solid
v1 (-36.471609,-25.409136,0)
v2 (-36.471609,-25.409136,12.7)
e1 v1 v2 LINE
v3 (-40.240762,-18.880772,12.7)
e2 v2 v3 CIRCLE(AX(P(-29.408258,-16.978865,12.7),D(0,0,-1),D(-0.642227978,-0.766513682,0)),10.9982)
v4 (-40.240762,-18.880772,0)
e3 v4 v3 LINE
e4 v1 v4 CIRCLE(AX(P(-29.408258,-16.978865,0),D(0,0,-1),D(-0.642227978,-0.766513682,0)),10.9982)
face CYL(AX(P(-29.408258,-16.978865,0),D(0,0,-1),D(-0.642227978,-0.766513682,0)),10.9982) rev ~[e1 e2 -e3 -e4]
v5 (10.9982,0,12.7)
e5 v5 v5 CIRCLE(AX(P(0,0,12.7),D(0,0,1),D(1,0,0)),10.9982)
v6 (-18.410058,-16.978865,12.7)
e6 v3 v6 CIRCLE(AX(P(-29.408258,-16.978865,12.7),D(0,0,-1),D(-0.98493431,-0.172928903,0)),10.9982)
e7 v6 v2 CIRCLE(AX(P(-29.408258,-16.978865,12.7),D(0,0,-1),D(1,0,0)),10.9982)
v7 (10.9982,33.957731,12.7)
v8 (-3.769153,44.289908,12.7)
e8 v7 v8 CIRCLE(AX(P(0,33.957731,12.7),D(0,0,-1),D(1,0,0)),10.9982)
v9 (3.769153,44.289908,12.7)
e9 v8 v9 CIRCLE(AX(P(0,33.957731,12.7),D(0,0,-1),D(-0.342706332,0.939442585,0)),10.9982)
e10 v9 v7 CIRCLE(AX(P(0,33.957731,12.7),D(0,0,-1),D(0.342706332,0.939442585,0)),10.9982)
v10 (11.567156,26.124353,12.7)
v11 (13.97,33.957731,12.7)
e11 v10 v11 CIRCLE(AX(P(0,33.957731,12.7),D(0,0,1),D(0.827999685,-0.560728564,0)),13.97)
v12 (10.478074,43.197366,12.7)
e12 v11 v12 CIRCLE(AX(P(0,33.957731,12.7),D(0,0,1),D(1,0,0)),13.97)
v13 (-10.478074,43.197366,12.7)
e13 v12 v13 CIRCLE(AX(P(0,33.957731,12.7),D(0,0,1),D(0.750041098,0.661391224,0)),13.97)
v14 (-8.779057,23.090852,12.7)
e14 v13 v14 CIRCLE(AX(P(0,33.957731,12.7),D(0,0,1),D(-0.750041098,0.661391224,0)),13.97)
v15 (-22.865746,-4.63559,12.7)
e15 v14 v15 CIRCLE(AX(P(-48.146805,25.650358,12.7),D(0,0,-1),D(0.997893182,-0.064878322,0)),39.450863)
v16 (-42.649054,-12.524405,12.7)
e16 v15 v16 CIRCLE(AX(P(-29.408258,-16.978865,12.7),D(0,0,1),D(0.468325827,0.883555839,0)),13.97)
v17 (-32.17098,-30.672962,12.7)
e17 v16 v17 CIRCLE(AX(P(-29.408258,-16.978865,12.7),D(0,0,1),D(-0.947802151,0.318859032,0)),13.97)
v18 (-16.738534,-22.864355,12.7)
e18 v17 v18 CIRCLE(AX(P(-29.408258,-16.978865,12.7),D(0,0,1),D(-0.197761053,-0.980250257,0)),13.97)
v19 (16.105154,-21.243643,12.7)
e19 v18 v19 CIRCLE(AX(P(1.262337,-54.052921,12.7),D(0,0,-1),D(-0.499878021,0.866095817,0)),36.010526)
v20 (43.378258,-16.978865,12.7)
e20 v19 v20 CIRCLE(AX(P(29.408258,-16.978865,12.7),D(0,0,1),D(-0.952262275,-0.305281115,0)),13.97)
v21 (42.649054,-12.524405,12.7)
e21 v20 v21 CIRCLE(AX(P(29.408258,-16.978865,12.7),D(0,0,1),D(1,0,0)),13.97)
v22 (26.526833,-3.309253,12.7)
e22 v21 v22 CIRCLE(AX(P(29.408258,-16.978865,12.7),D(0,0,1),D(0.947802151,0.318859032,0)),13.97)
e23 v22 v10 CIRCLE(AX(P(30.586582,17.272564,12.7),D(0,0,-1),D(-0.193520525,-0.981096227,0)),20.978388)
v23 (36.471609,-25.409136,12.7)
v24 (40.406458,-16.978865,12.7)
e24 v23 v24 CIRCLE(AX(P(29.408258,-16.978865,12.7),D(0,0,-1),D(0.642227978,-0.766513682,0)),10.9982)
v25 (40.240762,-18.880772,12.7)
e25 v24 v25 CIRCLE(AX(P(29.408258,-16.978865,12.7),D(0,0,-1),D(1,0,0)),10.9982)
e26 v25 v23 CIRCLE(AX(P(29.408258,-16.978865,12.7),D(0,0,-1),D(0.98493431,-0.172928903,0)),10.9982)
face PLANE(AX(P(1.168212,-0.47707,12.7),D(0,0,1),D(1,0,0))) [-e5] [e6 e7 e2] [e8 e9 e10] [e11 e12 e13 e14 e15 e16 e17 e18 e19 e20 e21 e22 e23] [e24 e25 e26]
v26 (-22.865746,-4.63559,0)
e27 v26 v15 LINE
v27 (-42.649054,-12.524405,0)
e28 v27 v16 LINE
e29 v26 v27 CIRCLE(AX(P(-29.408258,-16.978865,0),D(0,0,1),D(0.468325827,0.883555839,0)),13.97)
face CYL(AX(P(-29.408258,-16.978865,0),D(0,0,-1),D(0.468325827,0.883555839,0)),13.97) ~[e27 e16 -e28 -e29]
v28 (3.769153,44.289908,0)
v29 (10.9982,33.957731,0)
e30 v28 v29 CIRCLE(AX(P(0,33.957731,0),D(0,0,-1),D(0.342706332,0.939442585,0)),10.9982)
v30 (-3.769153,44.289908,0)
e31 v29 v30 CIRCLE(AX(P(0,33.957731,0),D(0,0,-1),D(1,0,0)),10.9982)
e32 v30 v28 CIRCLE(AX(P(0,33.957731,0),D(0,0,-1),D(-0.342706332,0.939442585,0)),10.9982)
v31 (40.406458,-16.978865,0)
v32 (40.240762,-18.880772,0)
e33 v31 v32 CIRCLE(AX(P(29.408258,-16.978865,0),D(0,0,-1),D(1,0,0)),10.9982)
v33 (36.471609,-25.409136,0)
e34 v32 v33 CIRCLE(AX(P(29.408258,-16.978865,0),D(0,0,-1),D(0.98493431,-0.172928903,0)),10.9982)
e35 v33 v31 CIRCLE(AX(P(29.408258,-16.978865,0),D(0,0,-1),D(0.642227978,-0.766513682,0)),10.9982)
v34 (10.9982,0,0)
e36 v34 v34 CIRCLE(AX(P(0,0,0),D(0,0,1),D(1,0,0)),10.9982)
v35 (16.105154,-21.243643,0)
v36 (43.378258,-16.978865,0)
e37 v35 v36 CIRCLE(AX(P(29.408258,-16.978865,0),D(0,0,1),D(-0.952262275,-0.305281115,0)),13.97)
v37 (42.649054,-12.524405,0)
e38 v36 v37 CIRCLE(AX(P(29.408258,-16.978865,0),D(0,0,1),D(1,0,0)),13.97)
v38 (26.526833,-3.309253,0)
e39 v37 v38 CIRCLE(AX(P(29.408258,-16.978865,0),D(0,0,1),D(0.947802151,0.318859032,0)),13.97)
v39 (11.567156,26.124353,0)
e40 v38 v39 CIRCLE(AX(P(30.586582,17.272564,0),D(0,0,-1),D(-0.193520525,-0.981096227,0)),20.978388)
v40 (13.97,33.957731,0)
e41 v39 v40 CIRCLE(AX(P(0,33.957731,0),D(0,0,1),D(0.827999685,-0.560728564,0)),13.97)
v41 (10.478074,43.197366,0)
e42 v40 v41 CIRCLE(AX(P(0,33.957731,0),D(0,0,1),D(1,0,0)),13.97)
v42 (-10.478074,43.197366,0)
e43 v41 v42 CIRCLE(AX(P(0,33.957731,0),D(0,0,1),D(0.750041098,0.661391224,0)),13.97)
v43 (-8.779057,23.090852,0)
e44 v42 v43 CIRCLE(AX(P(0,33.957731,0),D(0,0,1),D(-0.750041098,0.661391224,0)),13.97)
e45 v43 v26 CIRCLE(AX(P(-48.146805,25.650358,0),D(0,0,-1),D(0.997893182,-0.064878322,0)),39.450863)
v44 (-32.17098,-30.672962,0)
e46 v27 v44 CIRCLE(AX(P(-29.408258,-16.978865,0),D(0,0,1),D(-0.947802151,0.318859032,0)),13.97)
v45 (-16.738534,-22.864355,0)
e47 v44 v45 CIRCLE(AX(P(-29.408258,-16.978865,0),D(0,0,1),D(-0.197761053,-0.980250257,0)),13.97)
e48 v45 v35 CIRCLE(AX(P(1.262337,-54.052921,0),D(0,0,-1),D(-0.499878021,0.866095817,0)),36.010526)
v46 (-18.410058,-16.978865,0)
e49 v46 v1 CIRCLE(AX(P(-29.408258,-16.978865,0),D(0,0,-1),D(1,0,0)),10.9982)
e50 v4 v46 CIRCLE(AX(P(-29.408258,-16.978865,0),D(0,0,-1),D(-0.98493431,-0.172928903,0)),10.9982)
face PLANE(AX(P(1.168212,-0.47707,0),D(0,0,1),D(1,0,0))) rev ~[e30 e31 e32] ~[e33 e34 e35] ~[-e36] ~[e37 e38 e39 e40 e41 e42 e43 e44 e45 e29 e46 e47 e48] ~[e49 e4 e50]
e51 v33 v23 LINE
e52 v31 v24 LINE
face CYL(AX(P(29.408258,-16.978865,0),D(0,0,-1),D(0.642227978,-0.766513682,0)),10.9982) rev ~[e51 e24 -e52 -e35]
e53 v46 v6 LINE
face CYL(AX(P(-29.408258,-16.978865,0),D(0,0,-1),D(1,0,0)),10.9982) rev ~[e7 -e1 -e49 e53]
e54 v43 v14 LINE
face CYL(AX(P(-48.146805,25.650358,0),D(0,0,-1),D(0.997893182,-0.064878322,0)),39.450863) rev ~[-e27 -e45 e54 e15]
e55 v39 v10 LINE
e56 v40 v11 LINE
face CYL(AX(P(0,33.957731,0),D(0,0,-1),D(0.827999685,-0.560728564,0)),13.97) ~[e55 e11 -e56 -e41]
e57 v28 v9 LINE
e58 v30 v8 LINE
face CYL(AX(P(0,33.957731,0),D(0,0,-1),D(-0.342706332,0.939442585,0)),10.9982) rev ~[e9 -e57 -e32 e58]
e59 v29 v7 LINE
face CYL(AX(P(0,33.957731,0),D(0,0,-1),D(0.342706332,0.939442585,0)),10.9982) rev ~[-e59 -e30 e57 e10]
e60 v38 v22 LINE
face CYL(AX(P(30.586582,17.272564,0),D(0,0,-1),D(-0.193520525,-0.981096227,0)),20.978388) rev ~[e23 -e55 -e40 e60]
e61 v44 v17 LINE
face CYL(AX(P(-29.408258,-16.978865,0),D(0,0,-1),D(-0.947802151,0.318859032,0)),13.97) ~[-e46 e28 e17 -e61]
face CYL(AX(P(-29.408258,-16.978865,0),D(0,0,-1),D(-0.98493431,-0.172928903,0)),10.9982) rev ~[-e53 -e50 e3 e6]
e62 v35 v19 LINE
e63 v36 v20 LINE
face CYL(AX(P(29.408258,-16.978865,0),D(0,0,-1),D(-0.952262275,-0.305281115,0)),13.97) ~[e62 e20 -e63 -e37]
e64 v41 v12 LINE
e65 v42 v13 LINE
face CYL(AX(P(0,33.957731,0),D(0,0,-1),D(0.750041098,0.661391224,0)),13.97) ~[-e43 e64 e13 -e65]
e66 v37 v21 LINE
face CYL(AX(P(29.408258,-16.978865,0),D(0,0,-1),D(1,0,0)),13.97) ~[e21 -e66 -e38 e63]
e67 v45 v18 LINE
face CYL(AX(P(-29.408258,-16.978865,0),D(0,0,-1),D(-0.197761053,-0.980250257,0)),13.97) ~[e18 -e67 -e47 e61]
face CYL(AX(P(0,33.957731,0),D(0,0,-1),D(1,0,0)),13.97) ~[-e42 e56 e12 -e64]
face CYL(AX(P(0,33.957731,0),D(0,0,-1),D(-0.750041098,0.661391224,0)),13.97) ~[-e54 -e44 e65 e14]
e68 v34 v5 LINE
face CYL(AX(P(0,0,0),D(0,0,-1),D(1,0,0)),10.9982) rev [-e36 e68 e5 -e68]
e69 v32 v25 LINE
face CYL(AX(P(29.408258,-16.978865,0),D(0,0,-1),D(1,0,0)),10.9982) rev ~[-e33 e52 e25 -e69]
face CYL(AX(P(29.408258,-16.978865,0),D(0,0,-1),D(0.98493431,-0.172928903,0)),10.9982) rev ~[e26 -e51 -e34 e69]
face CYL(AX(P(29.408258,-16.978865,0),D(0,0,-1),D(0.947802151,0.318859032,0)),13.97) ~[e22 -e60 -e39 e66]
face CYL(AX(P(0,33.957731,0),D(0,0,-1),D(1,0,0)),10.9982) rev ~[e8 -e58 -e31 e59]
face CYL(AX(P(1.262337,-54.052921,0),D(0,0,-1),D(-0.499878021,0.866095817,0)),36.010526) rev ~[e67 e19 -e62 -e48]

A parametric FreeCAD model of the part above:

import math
import FreeCAD as App
import Part
import Sketcher
Q = App.Units.Quantity

doc = App.newDocument("Part")
params = doc.addObject("Spreadsheet::Sheet", "Params")
for row, (alias, value) in enumerate([
    ("sketch1_radius", "0.55 in"),
    ("sketch1_diameter", "0.866 in"),
    ("pad1_length", "0.5 in"),
], start=1):
    params.set(f"A{row}", alias)
    params.set(f"B{row}", "=" + value)
    params.setAlias(f"B{row}", alias)

body = doc.addObject("PartDesign::Body", "Body")

sketch1 = doc.addObject("Sketcher::SketchObject", "Sketch")
body.addObject(sketch1)
sketch1.AttachmentSupport = (doc.XY_Plane, [""])
sketch1.MapMode = "FlatFace"
sketch1.addGeometry(Part.ArcOfCircle(Part.Circle(App.Vector(30.6, 17.3, 0), App.Vector(0, 0, 1), 21), math.radians(155), math.radians(259)), False)
sketch1.addGeometry(Part.ArcOfCircle(Part.Circle(App.Vector(0, 34, 0), App.Vector(0, 0, 1), 14), math.radians(-34), math.radians(0)), False)
sketch1.addGeometry(Part.ArcOfCircle(Part.Circle(App.Vector(0, 34, 0), App.Vector(0, 0, 1), 14), math.radians(0), math.radians(41)), False)
sketch1.addGeometry(Part.ArcOfCircle(Part.Circle(App.Vector(0, 34, 0), App.Vector(0, 0, 1), 14), math.radians(41), math.radians(139)), False)
sketch1.addGeometry(Part.ArcOfCircle(Part.Circle(App.Vector(0, 34, 0), App.Vector(0, 0, 1), 14), math.radians(139), math.radians(231)), False)
sketch1.addGeometry(Part.ArcOfCircle(Part.Circle(App.Vector(-48.1, 25.7, 0), App.Vector(0, 0, 1), 39.5), math.radians(-50), math.radians(-4)), False)
sketch1.addGeometry(Part.ArcOfCircle(Part.Circle(App.Vector(-29.4, -17, 0), App.Vector(0, 0, 1), 14), math.radians(62), math.radians(161)), False)
sketch1.addGeometry(Part.ArcOfCircle(Part.Circle(App.Vector(-29.4, -17, 0), App.Vector(0, 0, 1), 14), math.radians(161), math.radians(259)), False)
sketch1.addGeometry(Part.ArcOfCircle(Part.Circle(App.Vector(-29.4, -17, 0), App.Vector(0, 0, 1), 14), math.radians(-101), math.radians(-25)), False)
sketch1.addGeometry(Part.ArcOfCircle(Part.Circle(App.Vector(1.3, -54.1, 0), App.Vector(0, 0, 1), 36), math.radians(66), math.radians(120)), False)
sketch1.addGeometry(Part.ArcOfCircle(Part.Circle(App.Vector(29.4, -17, 0), App.Vector(0, 0, 1), 14), math.radians(-162), math.radians(0)), False)
sketch1.addGeometry(Part.ArcOfCircle(Part.Circle(App.Vector(29.4, -17, 0), App.Vector(0, 0, 1), 14), math.radians(0), math.radians(18.59)), False)
sketch1.addGeometry(Part.ArcOfCircle(Part.Circle(App.Vector(29.4, -17, 0), App.Vector(0, 0, 1), 14), math.radians(19), math.radians(102)), False)
sketch1.addGeometry(Part.ArcOfCircle(Part.Circle(App.Vector(-29.4, -17, 0), App.Vector(0, 0, 1), 11), math.radians(0), math.radians(190)), False)
sketch1.addGeometry(Part.ArcOfCircle(Part.Circle(App.Vector(-29.4, -17, 0), App.Vector(0, 0, 1), 11), math.radians(-130), math.radians(0)), False)
sketch1.addGeometry(Part.ArcOfCircle(Part.Circle(App.Vector(-29.4, -17, 0), App.Vector(0, 0, 1), 11), math.radians(-170), math.radians(-130)), False)
sketch1.addGeometry(Part.Circle(App.Vector(0, 0, 0), App.Vector(0, 0, 1), 11), False)
sketch1.addGeometry(Part.ArcOfCircle(Part.Circle(App.Vector(29.4, -17, 0), App.Vector(0, 0, 1), 11), math.radians(-9.96), math.radians(0)), False)
sketch1.addGeometry(Part.ArcOfCircle(Part.Circle(App.Vector(29.4, -17, 0), App.Vector(0, 0, 1), 11), math.radians(-50), math.radians(-10)), False)
sketch1.addGeometry(Part.ArcOfCircle(Part.Circle(App.Vector(29.4, -17, 0), App.Vector(0, 0, 1), 11), math.radians(0), math.radians(310)), False)
sketch1.addGeometry(Part.ArcOfCircle(Part.Circle(App.Vector(0, 34, 0), App.Vector(0, 0, 1), 11), math.radians(0), math.radians(70)), False)
sketch1.addGeometry(Part.ArcOfCircle(Part.Circle(App.Vector(0, 34, 0), App.Vector(0, 0, 1), 11), math.radians(110), math.radians(360)), False)
sketch1.addGeometry(Part.ArcOfCircle(Part.Circle(App.Vector(0, 34, 0), App.Vector(0, 0, 1), 11), math.radians(70), math.radians(110)), False)
sketch1.addConstraint(Sketcher.Constraint("Coincident", 0, 1, 1, 1))
sketch1.addConstraint(Sketcher.Constraint("Tangent", 1, 2, 2, 1))
sketch1.addConstraint(Sketcher.Constraint("Tangent", 2, 2, 3, 1))
sketch1.addConstraint(Sketcher.Constraint("Tangent", 3, 2, 4, 1))
sketch1.addConstraint(Sketcher.Constraint("Coincident", 4, 2, 5, 2))
sketch1.addConstraint(Sketcher.Constraint("Coincident", 5, 1, 6, 1))
sketch1.addConstraint(Sketcher.Constraint("Tangent", 6, 2, 7, 1))
sketch1.addConstraint(Sketcher.Constraint("Tangent", 7, 2, 8, 1))
sketch1.addConstraint(Sketcher.Constraint("Coincident", 8, 2, 9, 2))
sketch1.addConstraint(Sketcher.Constraint("Coincident", 9, 1, 10, 1))
sketch1.addConstraint(Sketcher.Constraint("Tangent", 10, 2, 11, 1))
sketch1.addConstraint(Sketcher.Constraint("Tangent", 11, 2, 12, 1))
sketch1.addConstraint(Sketcher.Constraint("Coincident", 12, 2, 0, 2))
sketch1.addConstraint(Sketcher.Constraint("Tangent", 13, 1, 14, 2))
sketch1.addConstraint(Sketcher.Constraint("Tangent", 14, 1, 15, 2))
sketch1.addConstraint(Sketcher.Constraint("Tangent", 15, 1, 13, 2))
sketch1.addConstraint(Sketcher.Constraint("Tangent", 17, 1, 18, 2))
sketch1.addConstraint(Sketcher.Constraint("Tangent", 18, 1, 19, 2))
sketch1.addConstraint(Sketcher.Constraint("Tangent", 19, 1, 17, 2))
sketch1.addConstraint(Sketcher.Constraint("Tangent", 20, 1, 21, 2))
sketch1.addConstraint(Sketcher.Constraint("Tangent", 21, 1, 22, 2))
sketch1.addConstraint(Sketcher.Constraint("Tangent", 22, 1, 20, 2))
sketch1.addConstraint(Sketcher.Constraint("Coincident", 16, 3, -1, 1))
sketch1.addConstraint(Sketcher.Constraint("Coincident", 3, 3, 1, 3))
sketch1.addConstraint(Sketcher.Constraint("Coincident", 8, 3, 6, 3))
sketch1.addConstraint(Sketcher.Constraint("Coincident", 12, 3, 10, 3))
sketch1.addConstraint(Sketcher.Constraint("Coincident", 13, 3, 6, 3))
sketch1.addConstraint(Sketcher.Constraint("Coincident", 17, 3, 10, 3))
sketch1.addConstraint(Sketcher.Constraint("Coincident", 20, 3, 1, 3))
sketch1.addConstraint(Sketcher.Constraint("Equal", 3, 4))
sketch1.addConstraint(Sketcher.Constraint("Equal", 4, 6))
sketch1.addConstraint(Sketcher.Constraint("Equal", 8, 10))
sketch1.addConstraint(Sketcher.Constraint("Equal", 15, 16))
sketch1.addConstraint(Sketcher.Constraint("Equal", 16, 17))
sketch1.addConstraint(Sketcher.Constraint("Equal", 19, 20))
sketch1.addConstraint(Sketcher.Constraint("Symmetric", 6, 3, 10, 3, -2))
sketch1.addConstraint(Sketcher.Constraint("Symmetric", 2, 2, 3, 2, -2))
sketch1.addConstraint(Sketcher.Constraint("Horizontal", 22, 3, 1, 2))
sketch1.addConstraint(Sketcher.Constraint("Horizontal", 19, 3, 10, 2))
sketch1.addConstraint(Sketcher.Constraint("Horizontal", 6, 2, 11, 2))
sketch1.addConstraint(Sketcher.Constraint("Horizontal", 10, 2, 13, 1))
sketch1.addConstraint(Sketcher.Constraint("Horizontal", 15, 1, 17, 1))
sketch1.addConstraint(Sketcher.Constraint("Horizontal", 14, 1, 18, 1))
sketch1.addConstraint(Sketcher.Constraint("Horizontal", 13, 1, 19, 1))
sketch1.addConstraint(Sketcher.Constraint("Horizontal", 1, 2, 20, 1))
sketch1.addConstraint(Sketcher.Constraint("Horizontal", 21, 1, 22, 1))
sketch1.addConstraint(Sketcher.Constraint("Radius", 1, Q("0.55 in")))
sketch1.addConstraint(Sketcher.Constraint("Diameter", 16, Q("0.866 in")))
sketch1.addConstraint(Sketcher.Constraint("DistanceX", -1, 1, 0, 1, Q("0.4553998 in")))
sketch1.addConstraint(Sketcher.Constraint("Radius", 0, Q("20.978388 mm")))
sketch1.addConstraint(Sketcher.Constraint("Radius", 5, Q("39.450863 mm")))
sketch1.addConstraint(Sketcher.Constraint("Radius", 9, Q("36.010526 mm")))
sketch1.addConstraint(Sketcher.Constraint("DistanceX", -1, 1, 0, 3, Q("30.586582 mm")))
sketch1.addConstraint(Sketcher.Constraint("DistanceY", -1, 1, 1, 3, Q("33.957731 mm")))
sketch1.addConstraint(Sketcher.Constraint("DistanceY", -1, 1, 5, 3, Q("25.650358 mm")))
sketch1.addConstraint(Sketcher.Constraint("DistanceY", 9, 3, -1, 1, Q("54.052921 mm")))
sketch1.addConstraint(Sketcher.Constraint("DistanceY", 5, 1, -1, 1, Q("4.63559 mm")))
sketch1.addConstraint(Sketcher.Constraint("DistanceX", 7, 2, -1, 1, Q("32.17098 mm")))
sketch1.addConstraint(Sketcher.Constraint("DistanceY", 7, 2, -1, 1, Q("30.672962 mm")))
sketch1.addConstraint(Sketcher.Constraint("DistanceX", 14, 1, -1, 1, Q("36.471609 mm")))
sketch1.addConstraint(Sketcher.Constraint("DistanceY", -1, 1, 21, 1, Q("44.289908 mm")))
sketch1.addConstraint(Sketcher.Constraint("DistanceY", 10, 3, 0, 3, Q("34.251429 mm")))
sketch1.addConstraint(Sketcher.Constraint("DistanceX", 9, 3, 10, 3, Q("28.145921 mm")))
sketch1.addConstraint(Sketcher.Constraint("DistanceY", 15, 3, 6, 2, Q("4.454461 mm")))
sketch1.addConstraint(Sketcher.Constraint("DistanceX", 6, 2, 15, 1, Q("2.408292 mm")))
sketch1.addConstraint(Sketcher.Constraint("DistanceX", 3, 2, 21, 1, Q("6.708921 mm")))
sketch1.setExpression("Constraints[46]", "Params.sketch1_radius")
sketch1.setExpression("Constraints[47]", "Params.sketch1_diameter")
pad1 = doc.addObject("PartDesign::Pad", "Pad")
body.addObject(pad1)
pad1.Profile = sketch1
pad1.setExpression("Length", "Params.pad1_length")

doc.recompute()
